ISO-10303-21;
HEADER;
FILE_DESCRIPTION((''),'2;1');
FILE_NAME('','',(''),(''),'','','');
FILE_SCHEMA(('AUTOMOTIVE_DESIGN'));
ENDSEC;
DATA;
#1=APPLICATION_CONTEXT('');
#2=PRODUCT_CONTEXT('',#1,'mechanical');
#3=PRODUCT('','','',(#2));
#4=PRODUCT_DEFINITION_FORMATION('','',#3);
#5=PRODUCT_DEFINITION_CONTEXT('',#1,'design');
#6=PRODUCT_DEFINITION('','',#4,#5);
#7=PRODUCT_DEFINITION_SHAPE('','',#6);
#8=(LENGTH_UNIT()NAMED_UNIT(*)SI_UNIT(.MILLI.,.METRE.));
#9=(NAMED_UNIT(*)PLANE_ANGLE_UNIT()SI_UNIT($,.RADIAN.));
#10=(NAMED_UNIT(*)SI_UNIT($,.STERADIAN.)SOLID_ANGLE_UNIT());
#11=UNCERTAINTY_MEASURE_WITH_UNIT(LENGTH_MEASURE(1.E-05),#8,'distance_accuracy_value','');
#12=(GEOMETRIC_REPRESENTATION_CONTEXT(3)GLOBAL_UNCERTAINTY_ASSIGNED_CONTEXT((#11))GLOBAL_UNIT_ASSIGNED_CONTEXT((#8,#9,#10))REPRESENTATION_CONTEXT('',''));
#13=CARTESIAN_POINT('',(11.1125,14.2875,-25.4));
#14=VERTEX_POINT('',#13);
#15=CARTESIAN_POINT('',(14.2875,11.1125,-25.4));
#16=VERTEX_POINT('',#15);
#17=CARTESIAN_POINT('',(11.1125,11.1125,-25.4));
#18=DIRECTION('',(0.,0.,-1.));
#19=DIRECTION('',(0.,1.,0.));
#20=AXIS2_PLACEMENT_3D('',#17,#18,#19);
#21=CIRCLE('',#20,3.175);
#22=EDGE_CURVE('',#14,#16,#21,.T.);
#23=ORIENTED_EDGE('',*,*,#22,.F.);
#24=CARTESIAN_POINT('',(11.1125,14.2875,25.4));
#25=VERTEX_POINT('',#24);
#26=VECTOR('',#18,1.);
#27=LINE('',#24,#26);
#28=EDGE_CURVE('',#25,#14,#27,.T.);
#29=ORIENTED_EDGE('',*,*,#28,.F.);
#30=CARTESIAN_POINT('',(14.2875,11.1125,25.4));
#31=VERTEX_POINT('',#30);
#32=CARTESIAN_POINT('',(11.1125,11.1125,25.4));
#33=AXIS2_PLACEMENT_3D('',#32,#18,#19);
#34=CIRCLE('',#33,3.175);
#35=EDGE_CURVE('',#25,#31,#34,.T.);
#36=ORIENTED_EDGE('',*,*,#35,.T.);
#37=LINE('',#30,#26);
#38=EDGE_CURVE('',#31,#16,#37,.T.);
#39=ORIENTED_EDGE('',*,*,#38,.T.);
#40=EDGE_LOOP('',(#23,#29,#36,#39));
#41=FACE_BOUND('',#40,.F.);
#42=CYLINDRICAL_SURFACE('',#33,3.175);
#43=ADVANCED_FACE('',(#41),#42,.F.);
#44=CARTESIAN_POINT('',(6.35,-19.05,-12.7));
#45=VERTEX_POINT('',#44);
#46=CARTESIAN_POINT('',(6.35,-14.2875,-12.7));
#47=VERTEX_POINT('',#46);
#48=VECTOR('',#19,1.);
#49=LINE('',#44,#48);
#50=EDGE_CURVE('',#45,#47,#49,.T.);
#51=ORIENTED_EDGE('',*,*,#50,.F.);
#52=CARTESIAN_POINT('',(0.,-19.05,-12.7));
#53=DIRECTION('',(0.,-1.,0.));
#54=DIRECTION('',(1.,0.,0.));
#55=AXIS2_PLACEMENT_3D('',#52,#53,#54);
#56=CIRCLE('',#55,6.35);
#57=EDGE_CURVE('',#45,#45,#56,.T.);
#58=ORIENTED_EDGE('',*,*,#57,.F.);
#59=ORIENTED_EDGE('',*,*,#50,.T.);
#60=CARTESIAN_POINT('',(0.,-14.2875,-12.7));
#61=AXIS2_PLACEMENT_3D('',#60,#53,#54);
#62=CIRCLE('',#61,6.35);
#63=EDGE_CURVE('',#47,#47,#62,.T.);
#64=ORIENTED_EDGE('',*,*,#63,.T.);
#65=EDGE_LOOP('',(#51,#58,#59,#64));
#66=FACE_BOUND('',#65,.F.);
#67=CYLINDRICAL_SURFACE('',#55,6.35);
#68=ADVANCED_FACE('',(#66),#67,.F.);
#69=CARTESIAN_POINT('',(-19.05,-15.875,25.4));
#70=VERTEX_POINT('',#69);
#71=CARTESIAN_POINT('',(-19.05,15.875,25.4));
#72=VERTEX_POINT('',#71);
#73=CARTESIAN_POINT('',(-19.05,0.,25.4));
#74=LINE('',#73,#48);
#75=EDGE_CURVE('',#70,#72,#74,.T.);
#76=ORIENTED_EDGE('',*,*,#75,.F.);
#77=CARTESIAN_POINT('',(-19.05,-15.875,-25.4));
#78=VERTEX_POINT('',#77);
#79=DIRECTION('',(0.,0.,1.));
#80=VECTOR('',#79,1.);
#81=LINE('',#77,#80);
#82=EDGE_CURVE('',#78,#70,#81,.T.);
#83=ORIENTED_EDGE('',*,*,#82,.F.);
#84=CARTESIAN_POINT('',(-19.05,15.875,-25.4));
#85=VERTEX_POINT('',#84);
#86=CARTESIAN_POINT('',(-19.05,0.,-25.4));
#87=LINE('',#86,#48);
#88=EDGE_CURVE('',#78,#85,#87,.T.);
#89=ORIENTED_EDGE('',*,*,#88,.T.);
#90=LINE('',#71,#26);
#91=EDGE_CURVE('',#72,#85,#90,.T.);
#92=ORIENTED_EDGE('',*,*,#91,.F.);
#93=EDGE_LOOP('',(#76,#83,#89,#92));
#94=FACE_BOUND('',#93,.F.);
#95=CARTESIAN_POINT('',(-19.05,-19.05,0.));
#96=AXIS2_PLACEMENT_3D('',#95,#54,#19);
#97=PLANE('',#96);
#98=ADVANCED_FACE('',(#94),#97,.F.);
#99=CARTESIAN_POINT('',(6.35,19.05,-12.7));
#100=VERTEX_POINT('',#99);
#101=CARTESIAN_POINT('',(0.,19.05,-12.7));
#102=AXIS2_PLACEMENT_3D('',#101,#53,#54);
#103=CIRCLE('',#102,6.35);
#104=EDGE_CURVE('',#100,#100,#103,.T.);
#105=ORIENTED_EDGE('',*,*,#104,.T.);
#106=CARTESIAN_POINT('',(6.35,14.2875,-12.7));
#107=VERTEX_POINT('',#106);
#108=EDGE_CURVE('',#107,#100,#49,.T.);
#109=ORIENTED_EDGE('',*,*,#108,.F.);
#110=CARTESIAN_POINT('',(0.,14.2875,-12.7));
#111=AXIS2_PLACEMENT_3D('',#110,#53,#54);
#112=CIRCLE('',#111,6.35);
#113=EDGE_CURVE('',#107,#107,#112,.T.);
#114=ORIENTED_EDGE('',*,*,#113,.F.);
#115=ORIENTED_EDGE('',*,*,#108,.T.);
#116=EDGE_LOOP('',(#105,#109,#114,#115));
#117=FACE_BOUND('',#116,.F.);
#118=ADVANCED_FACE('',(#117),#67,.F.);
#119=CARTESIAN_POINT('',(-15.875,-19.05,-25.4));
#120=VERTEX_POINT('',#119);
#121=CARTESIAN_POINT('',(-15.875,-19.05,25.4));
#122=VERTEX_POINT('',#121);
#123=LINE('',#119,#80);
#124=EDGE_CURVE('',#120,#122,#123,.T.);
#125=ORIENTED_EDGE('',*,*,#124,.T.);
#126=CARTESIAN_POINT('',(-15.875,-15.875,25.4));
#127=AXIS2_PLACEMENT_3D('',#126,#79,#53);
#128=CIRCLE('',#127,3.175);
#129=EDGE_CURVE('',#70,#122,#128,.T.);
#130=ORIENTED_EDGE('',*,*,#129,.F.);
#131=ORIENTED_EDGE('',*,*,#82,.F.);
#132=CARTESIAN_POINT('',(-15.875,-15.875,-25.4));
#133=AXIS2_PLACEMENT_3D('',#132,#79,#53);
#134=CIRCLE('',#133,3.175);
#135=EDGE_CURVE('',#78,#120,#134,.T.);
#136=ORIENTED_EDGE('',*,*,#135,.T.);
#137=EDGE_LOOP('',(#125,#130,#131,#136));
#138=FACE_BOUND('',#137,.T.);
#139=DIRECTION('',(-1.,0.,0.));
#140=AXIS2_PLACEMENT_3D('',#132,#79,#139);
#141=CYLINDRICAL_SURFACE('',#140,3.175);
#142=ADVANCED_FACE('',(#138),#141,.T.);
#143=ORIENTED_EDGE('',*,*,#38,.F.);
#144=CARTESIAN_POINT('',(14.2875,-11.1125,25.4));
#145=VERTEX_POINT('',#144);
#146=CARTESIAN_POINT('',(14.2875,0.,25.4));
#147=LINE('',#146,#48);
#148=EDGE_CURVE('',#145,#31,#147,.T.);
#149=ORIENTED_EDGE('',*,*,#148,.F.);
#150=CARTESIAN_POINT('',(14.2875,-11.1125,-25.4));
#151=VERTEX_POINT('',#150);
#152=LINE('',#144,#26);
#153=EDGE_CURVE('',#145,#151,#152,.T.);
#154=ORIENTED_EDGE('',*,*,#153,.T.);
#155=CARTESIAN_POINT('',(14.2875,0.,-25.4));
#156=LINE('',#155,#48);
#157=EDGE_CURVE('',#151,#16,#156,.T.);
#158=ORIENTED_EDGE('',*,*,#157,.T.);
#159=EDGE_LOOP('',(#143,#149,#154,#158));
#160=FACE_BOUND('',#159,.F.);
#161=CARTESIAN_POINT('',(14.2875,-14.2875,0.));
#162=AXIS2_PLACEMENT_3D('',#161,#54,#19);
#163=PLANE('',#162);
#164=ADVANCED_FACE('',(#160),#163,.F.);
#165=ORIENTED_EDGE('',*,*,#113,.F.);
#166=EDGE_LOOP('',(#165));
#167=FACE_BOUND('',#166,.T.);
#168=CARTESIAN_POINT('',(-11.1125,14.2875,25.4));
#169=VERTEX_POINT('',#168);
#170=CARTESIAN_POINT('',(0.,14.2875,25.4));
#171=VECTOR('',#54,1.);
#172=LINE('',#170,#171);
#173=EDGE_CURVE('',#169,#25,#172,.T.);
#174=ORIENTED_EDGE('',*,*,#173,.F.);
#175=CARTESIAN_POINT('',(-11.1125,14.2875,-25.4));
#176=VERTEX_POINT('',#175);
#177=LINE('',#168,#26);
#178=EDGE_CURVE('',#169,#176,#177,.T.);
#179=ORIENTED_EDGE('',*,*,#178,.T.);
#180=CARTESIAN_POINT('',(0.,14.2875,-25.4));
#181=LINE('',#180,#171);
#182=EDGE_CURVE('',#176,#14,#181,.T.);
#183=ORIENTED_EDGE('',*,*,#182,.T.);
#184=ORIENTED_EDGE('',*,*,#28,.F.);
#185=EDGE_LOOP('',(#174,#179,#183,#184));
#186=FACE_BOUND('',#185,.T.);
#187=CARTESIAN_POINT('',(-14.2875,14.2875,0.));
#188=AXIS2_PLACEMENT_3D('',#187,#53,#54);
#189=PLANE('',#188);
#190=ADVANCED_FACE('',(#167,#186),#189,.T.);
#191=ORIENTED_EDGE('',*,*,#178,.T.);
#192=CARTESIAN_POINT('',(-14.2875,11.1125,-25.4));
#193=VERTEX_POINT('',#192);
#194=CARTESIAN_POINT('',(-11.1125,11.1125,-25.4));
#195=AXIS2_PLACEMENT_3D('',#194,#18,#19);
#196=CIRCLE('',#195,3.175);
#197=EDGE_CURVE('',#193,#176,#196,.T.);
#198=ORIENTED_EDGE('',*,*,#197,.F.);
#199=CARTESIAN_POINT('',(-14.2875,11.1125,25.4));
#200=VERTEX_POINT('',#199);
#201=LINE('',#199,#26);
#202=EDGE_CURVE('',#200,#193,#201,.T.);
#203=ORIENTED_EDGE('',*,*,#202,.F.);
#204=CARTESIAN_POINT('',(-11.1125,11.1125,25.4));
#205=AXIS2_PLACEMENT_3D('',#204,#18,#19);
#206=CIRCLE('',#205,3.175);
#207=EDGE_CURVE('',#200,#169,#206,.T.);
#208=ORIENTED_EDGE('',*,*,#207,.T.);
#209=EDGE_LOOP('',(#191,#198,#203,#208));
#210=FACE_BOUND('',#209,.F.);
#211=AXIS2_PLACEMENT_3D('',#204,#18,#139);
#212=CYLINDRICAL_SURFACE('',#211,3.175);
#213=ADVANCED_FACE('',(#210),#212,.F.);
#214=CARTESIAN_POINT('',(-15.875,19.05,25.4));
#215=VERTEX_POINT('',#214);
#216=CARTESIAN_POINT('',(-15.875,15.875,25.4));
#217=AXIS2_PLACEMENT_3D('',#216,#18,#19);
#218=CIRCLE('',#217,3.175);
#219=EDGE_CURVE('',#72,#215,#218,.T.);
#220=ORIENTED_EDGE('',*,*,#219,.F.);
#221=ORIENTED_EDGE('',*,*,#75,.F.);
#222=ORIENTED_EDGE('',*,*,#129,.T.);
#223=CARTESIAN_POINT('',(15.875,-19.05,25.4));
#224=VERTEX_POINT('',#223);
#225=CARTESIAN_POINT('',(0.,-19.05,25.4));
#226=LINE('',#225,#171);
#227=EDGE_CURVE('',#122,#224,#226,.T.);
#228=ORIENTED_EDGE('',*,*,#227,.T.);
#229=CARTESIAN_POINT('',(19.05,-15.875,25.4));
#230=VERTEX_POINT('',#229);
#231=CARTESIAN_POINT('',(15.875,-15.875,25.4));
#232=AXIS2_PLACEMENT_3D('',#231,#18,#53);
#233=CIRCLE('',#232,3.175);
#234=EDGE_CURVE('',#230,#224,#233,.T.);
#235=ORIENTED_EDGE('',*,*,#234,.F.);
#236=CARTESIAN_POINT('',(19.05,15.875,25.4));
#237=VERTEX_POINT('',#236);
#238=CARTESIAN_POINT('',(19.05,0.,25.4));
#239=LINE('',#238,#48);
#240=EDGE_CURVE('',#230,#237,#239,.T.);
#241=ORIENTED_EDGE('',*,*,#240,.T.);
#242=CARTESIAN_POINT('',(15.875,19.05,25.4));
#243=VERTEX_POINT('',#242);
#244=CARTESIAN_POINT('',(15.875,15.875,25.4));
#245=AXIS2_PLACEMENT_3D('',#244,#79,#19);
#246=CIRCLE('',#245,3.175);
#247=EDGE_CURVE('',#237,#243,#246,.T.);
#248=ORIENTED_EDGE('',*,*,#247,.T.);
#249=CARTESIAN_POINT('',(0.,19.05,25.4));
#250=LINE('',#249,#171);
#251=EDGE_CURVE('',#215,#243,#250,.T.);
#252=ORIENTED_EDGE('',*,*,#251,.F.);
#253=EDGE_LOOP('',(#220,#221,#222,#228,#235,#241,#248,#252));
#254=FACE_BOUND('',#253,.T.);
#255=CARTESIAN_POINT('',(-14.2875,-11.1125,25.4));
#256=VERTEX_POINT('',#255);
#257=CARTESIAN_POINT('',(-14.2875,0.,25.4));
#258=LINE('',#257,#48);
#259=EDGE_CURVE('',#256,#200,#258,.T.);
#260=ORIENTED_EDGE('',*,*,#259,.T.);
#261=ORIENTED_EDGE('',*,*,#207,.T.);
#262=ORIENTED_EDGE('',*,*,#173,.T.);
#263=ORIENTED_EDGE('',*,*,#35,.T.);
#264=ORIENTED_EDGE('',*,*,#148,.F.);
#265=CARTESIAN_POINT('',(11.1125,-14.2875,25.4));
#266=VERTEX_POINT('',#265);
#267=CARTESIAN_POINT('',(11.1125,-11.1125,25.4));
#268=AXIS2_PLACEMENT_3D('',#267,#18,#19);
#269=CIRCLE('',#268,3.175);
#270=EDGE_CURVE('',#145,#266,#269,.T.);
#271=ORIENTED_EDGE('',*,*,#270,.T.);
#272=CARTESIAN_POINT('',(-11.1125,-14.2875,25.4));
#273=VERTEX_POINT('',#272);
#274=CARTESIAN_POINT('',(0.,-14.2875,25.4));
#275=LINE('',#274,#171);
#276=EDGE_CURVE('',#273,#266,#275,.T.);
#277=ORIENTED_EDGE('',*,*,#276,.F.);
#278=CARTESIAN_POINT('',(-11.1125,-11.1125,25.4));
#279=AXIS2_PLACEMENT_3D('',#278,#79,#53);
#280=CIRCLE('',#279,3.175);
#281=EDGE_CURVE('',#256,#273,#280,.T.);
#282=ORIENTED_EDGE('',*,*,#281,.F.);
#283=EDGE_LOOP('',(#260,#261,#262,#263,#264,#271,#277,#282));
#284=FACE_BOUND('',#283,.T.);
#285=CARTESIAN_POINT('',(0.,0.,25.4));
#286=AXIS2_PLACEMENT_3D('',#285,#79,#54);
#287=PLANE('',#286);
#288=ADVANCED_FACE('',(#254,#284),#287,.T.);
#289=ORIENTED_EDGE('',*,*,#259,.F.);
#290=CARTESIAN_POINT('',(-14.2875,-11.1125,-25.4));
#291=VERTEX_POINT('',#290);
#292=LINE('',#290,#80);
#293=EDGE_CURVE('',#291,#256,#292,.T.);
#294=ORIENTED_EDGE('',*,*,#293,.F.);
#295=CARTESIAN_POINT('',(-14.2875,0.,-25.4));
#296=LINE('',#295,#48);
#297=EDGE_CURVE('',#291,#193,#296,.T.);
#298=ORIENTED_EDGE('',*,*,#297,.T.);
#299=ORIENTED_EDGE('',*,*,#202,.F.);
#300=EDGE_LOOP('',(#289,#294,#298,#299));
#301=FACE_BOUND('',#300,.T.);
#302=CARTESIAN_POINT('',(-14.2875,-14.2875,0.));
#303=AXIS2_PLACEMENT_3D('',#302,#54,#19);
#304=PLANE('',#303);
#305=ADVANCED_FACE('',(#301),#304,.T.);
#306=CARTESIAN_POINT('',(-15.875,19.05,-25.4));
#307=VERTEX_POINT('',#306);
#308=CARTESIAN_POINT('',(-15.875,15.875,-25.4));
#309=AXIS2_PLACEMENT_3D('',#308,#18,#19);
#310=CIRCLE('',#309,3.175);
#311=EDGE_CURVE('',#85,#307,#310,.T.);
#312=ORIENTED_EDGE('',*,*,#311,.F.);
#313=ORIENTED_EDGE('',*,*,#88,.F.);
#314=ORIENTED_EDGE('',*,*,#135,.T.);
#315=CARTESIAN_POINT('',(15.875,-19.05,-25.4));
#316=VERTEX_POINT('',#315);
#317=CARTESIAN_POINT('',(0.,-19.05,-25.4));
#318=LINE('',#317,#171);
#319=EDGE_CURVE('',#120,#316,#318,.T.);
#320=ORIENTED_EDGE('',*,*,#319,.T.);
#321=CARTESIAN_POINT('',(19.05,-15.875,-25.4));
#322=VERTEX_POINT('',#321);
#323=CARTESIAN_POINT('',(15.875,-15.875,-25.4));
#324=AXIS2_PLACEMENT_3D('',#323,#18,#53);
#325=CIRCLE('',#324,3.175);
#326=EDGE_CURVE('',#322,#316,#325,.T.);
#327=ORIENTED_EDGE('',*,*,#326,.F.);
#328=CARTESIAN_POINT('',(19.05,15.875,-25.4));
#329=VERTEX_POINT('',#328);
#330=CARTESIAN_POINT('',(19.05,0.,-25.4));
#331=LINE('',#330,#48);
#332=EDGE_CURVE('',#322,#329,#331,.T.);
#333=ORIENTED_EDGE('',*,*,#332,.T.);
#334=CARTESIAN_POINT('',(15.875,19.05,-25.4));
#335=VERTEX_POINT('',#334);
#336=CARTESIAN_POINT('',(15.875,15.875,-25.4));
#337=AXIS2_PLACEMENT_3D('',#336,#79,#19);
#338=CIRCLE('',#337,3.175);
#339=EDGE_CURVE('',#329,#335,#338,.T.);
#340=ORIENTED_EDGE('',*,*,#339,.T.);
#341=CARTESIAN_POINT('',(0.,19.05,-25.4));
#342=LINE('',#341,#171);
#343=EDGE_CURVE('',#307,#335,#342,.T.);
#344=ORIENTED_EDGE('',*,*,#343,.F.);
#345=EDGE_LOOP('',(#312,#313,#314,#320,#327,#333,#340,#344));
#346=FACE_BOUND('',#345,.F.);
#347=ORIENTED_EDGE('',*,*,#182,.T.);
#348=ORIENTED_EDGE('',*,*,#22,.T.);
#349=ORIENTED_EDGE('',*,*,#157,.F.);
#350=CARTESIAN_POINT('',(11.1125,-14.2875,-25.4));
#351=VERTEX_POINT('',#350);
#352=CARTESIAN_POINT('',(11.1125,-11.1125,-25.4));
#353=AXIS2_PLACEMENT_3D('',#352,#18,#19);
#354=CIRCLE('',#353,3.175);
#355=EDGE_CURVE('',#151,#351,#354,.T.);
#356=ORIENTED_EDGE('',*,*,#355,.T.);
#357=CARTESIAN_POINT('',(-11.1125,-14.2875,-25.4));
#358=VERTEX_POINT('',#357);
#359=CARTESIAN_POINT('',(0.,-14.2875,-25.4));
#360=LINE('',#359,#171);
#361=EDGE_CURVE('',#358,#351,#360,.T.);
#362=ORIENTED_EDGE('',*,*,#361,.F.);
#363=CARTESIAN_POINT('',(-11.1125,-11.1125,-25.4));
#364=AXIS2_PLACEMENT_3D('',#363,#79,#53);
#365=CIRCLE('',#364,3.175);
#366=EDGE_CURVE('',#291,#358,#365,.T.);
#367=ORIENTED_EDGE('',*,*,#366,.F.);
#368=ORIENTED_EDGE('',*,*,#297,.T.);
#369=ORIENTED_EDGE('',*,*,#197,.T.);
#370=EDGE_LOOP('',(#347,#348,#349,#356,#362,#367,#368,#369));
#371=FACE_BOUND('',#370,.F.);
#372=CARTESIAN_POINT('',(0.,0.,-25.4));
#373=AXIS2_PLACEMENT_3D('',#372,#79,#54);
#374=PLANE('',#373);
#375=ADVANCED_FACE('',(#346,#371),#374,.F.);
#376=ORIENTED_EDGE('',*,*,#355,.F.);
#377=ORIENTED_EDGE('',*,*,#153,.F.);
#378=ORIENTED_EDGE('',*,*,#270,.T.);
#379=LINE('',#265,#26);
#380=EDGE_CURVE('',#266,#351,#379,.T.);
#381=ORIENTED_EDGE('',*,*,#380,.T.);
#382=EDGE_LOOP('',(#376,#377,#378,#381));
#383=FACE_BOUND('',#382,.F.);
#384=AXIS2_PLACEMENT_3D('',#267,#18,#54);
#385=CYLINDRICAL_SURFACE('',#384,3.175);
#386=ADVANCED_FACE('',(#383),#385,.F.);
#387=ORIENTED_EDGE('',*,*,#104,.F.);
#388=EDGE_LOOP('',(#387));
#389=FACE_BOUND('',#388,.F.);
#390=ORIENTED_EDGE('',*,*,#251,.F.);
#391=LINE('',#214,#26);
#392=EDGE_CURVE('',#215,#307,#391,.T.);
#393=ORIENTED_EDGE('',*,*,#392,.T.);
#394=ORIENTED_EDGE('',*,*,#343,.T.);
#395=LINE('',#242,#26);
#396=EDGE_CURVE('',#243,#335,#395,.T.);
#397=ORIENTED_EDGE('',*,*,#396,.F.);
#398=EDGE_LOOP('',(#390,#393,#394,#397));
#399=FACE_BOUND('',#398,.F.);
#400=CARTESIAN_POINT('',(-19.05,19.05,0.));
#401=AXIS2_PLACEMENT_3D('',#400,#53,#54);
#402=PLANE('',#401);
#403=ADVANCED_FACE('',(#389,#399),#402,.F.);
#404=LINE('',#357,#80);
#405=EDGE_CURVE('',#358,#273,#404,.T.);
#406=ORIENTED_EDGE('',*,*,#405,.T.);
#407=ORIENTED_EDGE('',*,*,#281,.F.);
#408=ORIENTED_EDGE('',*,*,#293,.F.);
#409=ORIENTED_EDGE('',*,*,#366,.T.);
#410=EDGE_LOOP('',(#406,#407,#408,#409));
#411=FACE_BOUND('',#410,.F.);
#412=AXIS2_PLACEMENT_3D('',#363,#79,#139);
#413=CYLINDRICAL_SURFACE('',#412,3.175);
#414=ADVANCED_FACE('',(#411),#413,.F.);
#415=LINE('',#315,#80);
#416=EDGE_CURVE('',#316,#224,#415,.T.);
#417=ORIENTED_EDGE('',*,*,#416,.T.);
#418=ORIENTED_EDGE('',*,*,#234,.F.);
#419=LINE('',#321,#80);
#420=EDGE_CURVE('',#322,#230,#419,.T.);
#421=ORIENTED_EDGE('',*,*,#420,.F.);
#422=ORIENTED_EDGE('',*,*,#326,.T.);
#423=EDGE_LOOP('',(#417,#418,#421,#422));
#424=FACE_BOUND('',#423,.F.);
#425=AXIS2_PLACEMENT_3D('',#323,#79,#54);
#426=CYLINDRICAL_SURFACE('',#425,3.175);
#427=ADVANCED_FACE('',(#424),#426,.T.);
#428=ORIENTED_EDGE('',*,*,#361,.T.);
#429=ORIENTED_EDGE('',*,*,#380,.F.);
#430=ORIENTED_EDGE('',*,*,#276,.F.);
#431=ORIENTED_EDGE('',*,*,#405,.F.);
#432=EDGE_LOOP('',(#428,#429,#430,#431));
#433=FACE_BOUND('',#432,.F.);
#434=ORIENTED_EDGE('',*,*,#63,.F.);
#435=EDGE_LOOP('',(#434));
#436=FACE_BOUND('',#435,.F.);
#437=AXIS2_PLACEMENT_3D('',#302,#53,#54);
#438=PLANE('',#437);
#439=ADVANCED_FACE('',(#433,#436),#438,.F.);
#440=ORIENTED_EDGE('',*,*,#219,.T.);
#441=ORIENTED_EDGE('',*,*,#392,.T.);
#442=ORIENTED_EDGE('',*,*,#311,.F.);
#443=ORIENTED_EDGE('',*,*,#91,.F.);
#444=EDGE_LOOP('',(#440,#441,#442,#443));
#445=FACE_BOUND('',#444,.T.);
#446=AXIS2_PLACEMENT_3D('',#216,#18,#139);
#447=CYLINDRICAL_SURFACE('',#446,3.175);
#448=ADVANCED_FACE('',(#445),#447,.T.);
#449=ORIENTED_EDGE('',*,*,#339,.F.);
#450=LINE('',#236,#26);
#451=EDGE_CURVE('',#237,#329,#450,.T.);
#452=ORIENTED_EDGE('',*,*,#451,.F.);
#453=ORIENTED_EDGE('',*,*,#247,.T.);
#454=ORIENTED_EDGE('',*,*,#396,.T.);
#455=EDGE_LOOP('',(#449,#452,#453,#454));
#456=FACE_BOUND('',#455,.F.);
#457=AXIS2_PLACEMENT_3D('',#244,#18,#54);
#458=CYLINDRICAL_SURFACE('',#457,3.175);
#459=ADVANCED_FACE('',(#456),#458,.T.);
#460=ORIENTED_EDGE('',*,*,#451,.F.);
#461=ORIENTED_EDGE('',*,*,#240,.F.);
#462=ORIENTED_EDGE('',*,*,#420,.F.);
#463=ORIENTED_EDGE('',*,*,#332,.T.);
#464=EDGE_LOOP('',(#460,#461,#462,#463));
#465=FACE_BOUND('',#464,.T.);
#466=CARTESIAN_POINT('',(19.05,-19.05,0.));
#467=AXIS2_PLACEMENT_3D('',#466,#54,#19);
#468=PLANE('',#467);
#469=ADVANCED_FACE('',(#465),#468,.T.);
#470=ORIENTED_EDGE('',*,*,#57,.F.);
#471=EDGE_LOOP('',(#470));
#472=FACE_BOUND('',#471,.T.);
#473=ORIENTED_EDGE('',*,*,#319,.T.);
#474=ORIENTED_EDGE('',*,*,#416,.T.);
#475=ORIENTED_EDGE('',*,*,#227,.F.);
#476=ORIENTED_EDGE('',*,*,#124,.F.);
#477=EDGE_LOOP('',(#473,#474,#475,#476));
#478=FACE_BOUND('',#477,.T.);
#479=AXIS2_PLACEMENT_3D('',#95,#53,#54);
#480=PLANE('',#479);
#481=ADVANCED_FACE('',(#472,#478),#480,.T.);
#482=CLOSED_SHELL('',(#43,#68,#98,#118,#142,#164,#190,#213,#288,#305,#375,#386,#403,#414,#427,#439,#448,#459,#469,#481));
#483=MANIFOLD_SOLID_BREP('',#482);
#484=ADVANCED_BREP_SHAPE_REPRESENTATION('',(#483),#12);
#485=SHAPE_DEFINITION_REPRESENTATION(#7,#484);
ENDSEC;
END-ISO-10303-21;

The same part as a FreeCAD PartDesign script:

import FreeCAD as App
import Part
import Sketcher
from FreeCAD import Vector
Q = App.Units.Quantity


def edges_at(feature, points):
    """Names of the edges that pass closest to the given points."""
    edges = feature.Shape.Edges
    near = lambda p: min(range(len(edges)), key=lambda i: edges[i].distToShape(Part.Vertex(*p))[0])
    return sorted({f"Edge{near(p) + 1}" for p in points})


def add_polygon(sketch, points):
    """Adds a closed chain of lines whose ends are joined by coincident constraints."""
    first, n = sketch.GeometryCount, len(points)
    for a, b in zip(points, points[1:] + points[:1]):
        sketch.addGeometry(Part.LineSegment(App.Vector(*a, 0), App.Vector(*b, 0)), False)
    for i in range(n):
        sketch.addConstraint(Sketcher.Constraint("Coincident", first + i, 2, first + (i + 1) % n, 1))

doc = App.newDocument("Part")
params = doc.addObject("Spreadsheet::Sheet", "Params")
for row, (alias, value) in enumerate([
    ("sketch1_width", "1.5 in"),
    ("sketch1_width2", "1.125 in"),
    ("pad1_length", "2 in"),
    ("fillet_radius", "0.125 in"),
    ("sketch2_diameter", "0.5 in"),
], start=1):
    params.set(f"A{row}", alias)
    params.set(f"B{row}", "=" + value)
    params.setAlias(f"B{row}", alias)

body = doc.addObject("PartDesign::Body", "Body")

# Sketch on XY plane
sketch1 = doc.addObject("Sketcher::SketchObject", "Sketch")
body.addObject(sketch1)
sketch1.AttachmentSupport = (doc.XY_Plane, [""])
sketch1.MapMode = "FlatFace"
add_polygon(sketch1, [(-19, 19), (-19, -19), (19, -19), (19, 19)])  # lines 0-3
add_polygon(sketch1, [(14, -14), (-14, -14), (-14, 14), (14, 14)])  # lines 4-7
sketch1.addConstraint([
    Sketcher.Constraint("Vertical", 0),
    Sketcher.Constraint("Horizontal", 1),
    Sketcher.Constraint("Vertical", 2),
    Sketcher.Constraint("Horizontal", 3),
    Sketcher.Constraint("Horizontal", 4),
    Sketcher.Constraint("Vertical", 5),
    Sketcher.Constraint("Horizontal", 6),
    Sketcher.Constraint("Vertical", 7),
    Sketcher.Constraint("Symmetric", 0, 2, 2, 2, -1, 1),
    Sketcher.Constraint("Symmetric", 4, 2, 6, 2, -1, 1),
    Sketcher.Constraint("Equal", 3, 0),
    Sketcher.Constraint("Equal", 6, 5),
    Sketcher.Constraint("DistanceX", 1, 1, 1, 2, Q("1.5 in")),
    Sketcher.Constraint("DistanceX", 4, 2, 4, 1, Q("1.125 in")),
])
sketch1.setExpression("Constraints[20]", "Params.sketch1_width")
sketch1.setExpression("Constraints[21]", "Params.sketch1_width2")
pad1 = doc.addObject("PartDesign::Pad", "Pad")
body.addObject(pad1)
pad1.Profile = sketch1
pad1.setExpression("Length", "Params.pad1_length")
pad1.Midplane = True
doc.recompute()

fillet = doc.addObject("PartDesign::Fillet", "Fillet")
body.addObject(fillet)
fillet.Base = (pad1, edges_at(pad1, [
    (19.05, -19.05, 0),
    (-19.05, -19.05, 0),
    (-14.287, 14.287, 0),
    (14.287, 14.287, 0),
    (-19.05, 19.05, 0),
    (19.05, 19.05, 0),
    (-14.287, -14.287, 0),
    (14.287, -14.287, 0),
]))
fillet.setExpression("Radius", "Params.fillet_radius")

# Sketch on XZ plane
sketch2 = doc.addObject("Sketcher::SketchObject", "Sketch001")
body.addObject(sketch2)
sketch2.AttachmentSupport = (doc.XZ_Plane, [""])
sketch2.MapMode = "FlatFace"
sketch2.AttachmentOffset = App.Placement(Vector(0, 0, 0.75 * 25.4), App.Rotation())
sketch2.addGeometry(Part.Circle(Vector(0, -13, 0), Vector(0, 0, 1), 6), False)
sketch2.addConstraint([
    Sketcher.Constraint("PointOnObject", 0, 3, -2),
    Sketcher.Constraint("Diameter", 0, Q("0.5 in")),
    Sketcher.Constraint("DistanceY", 0, 3, -1, 1, Q("0.5 in")),
])
sketch2.setExpression("Constraints[1]", "Params.sketch2_diameter")
pocket1 = doc.addObject("PartDesign::Pocket", "Pocket")
body.addObject(pocket1)
pocket1.Profile = sketch2
pocket1.Type = "ThroughAll"

doc.recompute()
